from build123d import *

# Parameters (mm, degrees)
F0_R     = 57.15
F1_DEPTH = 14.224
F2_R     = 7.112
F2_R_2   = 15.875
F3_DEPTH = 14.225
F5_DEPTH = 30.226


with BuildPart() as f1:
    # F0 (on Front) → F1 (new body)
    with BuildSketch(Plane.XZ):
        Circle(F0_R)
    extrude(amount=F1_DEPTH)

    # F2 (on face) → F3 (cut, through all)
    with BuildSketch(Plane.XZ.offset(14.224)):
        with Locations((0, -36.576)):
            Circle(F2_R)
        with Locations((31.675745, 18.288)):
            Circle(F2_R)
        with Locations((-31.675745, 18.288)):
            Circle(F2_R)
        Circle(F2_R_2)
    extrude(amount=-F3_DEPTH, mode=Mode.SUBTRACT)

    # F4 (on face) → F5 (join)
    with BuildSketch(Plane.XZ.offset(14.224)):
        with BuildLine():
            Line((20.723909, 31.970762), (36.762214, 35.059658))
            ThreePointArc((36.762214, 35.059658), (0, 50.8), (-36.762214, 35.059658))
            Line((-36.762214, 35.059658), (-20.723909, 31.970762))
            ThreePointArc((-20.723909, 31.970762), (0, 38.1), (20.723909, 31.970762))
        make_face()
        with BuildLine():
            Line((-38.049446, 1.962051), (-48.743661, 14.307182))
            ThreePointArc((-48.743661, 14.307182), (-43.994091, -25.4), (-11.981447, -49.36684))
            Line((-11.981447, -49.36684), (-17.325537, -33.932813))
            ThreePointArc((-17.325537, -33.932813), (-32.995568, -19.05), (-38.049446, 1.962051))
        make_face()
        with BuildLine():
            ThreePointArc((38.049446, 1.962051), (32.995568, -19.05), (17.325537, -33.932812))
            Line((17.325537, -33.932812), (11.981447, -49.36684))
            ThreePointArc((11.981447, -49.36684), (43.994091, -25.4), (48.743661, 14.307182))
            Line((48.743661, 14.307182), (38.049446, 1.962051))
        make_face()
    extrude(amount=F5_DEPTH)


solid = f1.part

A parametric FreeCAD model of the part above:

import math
import FreeCAD as App
import Part
import Sketcher

V = App.Vector
Q = App.Units.Quantity

doc = App.newDocument("Part")
body = doc.addObject("PartDesign::Body", "Body")

# Sketch on XZ plane
sketch1 = body.newObject("Sketcher::SketchObject", "Sketch")
sketch1.AttachmentSupport = (doc.getObject("XZ_Plane"), [""])
sketch1.MapMode = "FlatFace"
sketch1.addGeometry(Part.Circle(V(0, 0, 0), V(0, 0, 1), 57.15), False)
sketch1.addConstraint([
    Sketcher.Constraint("Coincident", 0, 3, -1, 1),
    Sketcher.Constraint("Diameter", 0, Q("4.5 in")),
])
pad1 = body.newObject("PartDesign::Pad", "Pad")
pad1.Profile = sketch1
pad1.Length = Q("0.56 in")

# Sketch on XZ plane
sketch2 = body.newObject("Sketcher::SketchObject", "Sketch001")
sketch2.AttachmentSupport = (doc.getObject("XZ_Plane"), [""])
sketch2.MapMode = "FlatFace"
sketch2.AttachmentOffset = App.Placement(V(0, 0, 0.56 * 25.4), App.Rotation())
sketch2.addGeometry([
    Part.Circle(V(0, -36.576, 0), V(0, 0, 1), 7.112),
    Part.Circle(V(31.675745, 18.288, 0), V(0, 0, 1), 7.112),
    Part.Circle(V(-31.675745, 18.288, 0), V(0, 0, 1), 7.112),
    Part.Circle(V(0, 0, 0), V(0, 0, 1), 15.875),
], False)
sketch2.addConstraint([
    Sketcher.Constraint("Coincident", 3, 3, -1, 1),
    Sketcher.Constraint("Equal", 0, 1),
    Sketcher.Constraint("Equal", 1, 2),
    Sketcher.Constraint("Symmetric", 1, 3, 2, 3, -2),
    Sketcher.Constraint("PointOnObject", 0, 3, -2),
    Sketcher.Constraint("Diameter", 0, Q("0.56 in")),
    Sketcher.Constraint("Diameter", 3, Q("1.25 in")),
    Sketcher.Constraint("DistanceY", 0, 3, -1, 1, Q("1.44 in")),
    Sketcher.Constraint("DistanceY", -1, 1, 1, 3, Q("0.72 in")),
    Sketcher.Constraint("DistanceX", 2, 3, 1, 3, 63.35149),
])
pocket1 = body.newObject("PartDesign::Pocket", "Pocket")
pocket1.Profile = sketch2
pocket1.Type = "ThroughAll"

# Sketch on XZ plane
sketch3 = body.newObject("Sketcher::SketchObject", "Sketch002")
sketch3.AttachmentSupport = (doc.getObject("XZ_Plane"), [""])
sketch3.MapMode = "FlatFace"
sketch3.AttachmentOffset = App.Placement(V(0, 0, 0.56 * 25.4), App.Rotation())
sketch3.addGeometry([
    Part.LineSegment(V(20.723909, 31.970762, 0), V(36.762214, 35.059658, 0)),  # 0
    Part.ArcOfCircle(Part.Circle(V(0, 0, 0), V(0, 0, 1), 50.8), math.radians(43.642043), math.radians(136.357957)),  # 1
    Part.LineSegment(V(-36.762214, 35.059658, 0), V(-20.723909, 31.970762, 0)),  # 2
    Part.ArcOfCircle(Part.Circle(V(0, -0.000002, 0), V(0, 0, 1), 38.100002), math.radians(57.048113), math.radians(122.951887)),  # 3
    Part.LineSegment(V(-38.049446, 1.962051, 0), V(-48.743661, 14.307182, 0)),  # 4
    Part.ArcOfCircle(Part.Circle(V(-0.000002, -0.000002, 0), V(0, 0, 1), 50.799998), math.radians(163.642041), math.radians(256.35796)),  # 5
    Part.LineSegment(V(-11.981447, -49.36684, 0), V(-17.325537, -33.932813, 0)),  # 6
    Part.ArcOfCircle(Part.Circle(V(0, 0, 0), V(0, 0, 1), 38.1), math.radians(177.04811), math.radians(242.951889)),  # 7
    Part.ArcOfCircle(Part.Circle(V(0.000003, -0.000001, 0), V(0, 0, 1), 38.099997), math.radians(-62.951892), math.radians(2.951891)),  # 8
    Part.LineSegment(V(17.325537, -33.932812, 0), V(11.981447, -49.36684, 0)),  # 9
    Part.ArcOfCircle(Part.Circle(V(0.000002, -0.000002, 0), V(0, 0, 1), 50.799998), math.radians(-76.35796), math.radians(16.357959)),  # 10
    Part.LineSegment(V(48.743661, 14.307182, 0), V(38.049446, 1.962051, 0)),  # 11
], False)
sketch3.addConstraint([
    Sketcher.Constraint("Coincident", 0, 2, 1, 1),
    Sketcher.Constraint("Coincident", 1, 2, 2, 1),
    Sketcher.Constraint("Coincident", 2, 2, 3, 2),
    Sketcher.Constraint("Coincident", 3, 1, 0, 1),
    Sketcher.Constraint("Coincident", 4, 2, 5, 1),
    Sketcher.Constraint("Coincident", 5, 2, 6, 1),
    Sketcher.Constraint("Coincident", 6, 2, 7, 2),
    Sketcher.Constraint("Coincident", 7, 1, 4, 1),
    Sketcher.Constraint("Coincident", 8, 1, 9, 1),
    Sketcher.Constraint("Coincident", 9, 2, 10, 1),
    Sketcher.Constraint("Coincident", 10, 2, 11, 1),
    Sketcher.Constraint("Coincident", 11, 2, 8, 2),
    Sketcher.Constraint("Coincident", 1, 3, -1, 1),
    Sketcher.Constraint("Coincident", 3, 3, -1, 1),
    Sketcher.Constraint("Coincident", 5, 3, -1, 1),
    Sketcher.Constraint("Coincident", 7, 3, -1, 1),
    Sketcher.Constraint("Coincident", 8, 3, -1, 1),
    Sketcher.Constraint("Coincident", 10, 3, -1, 1),
    Sketcher.Constraint("Equal", 5, 10),
    Sketcher.Constraint("Symmetric", 6, 2, 8, 1, -2),
    Sketcher.Constraint("Horizontal", 0, 2, 1, 2),
    Sketcher.Constraint("Horizontal", 2, 2, 3, 1),
    Sketcher.Constraint("Horizontal", 5, 2, 9, 2),
    Sketcher.Constraint("Horizontal", 4, 2, 10, 2),
    Sketcher.Constraint("Horizontal", 7, 1, 11, 2),
    Sketcher.Constraint("Equal", 2, 4),
    Sketcher.Constraint("Equal", 4, 6),
    Sketcher.Constraint("Radius", 1, Q("2 in")),
    Sketcher.Constraint("Radius", 5, Q("1.9999999 in")),
    Sketcher.Constraint("Radius", 3, Q("1.5000001 in")),
    Sketcher.Constraint("Radius", 7, Q("1.5 in")),
    Sketcher.Constraint("Distance", 0, 16.333049),
    Sketcher.Constraint("DistanceY", -1, 1, 1, 2, 35.059658),
    Sketcher.Constraint("DistanceX", 4, 2, -1, 1, 48.743661),
    Sketcher.Constraint("DistanceY", 5, 2, -1, 1, 49.36684),
])
pad2 = body.newObject("PartDesign::Pad", "Pad001")
pad2.Profile = sketch3
pad2.Length = Q("1.19 in")

doc.recompute()
